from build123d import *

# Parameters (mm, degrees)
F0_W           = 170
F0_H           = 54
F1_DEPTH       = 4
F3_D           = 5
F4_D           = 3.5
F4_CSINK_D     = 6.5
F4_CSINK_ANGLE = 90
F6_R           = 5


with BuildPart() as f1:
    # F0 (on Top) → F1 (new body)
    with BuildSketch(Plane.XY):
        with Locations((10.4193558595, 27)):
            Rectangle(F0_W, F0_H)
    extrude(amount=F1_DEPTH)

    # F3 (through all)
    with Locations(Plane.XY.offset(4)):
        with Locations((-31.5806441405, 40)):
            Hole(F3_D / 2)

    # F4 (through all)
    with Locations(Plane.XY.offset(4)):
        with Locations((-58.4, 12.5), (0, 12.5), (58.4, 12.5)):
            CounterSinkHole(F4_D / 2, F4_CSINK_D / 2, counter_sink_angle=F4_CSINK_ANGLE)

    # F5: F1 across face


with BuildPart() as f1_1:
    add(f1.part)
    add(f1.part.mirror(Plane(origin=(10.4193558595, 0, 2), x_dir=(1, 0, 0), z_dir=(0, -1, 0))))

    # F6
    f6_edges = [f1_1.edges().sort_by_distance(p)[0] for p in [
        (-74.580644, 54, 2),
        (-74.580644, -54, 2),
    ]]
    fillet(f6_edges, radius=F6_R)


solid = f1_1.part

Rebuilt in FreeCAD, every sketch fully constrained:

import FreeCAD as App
import Part
import Sketcher

V = App.Vector


def edges_at(feature, points):
    """Names of the edges that pass closest to the given points."""
    edges = feature.Shape.Edges
    near = lambda p: min(range(len(edges)), key=lambda i: edges[i].distToShape(Part.Vertex(*p))[0])
    return sorted({f"Edge{near(p) + 1}" for p in points})


def add_polygon(sketch, points):
    """Adds a closed chain of lines whose ends are joined by coincident constraints."""
    first, n = sketch.GeometryCount, len(points)
    for a, b in zip(points, points[1:] + points[:1]):
        sketch.addGeometry(Part.LineSegment(App.Vector(*a, 0), App.Vector(*b, 0)), False)
    for i in range(n):
        sketch.addConstraint(Sketcher.Constraint("Coincident", first + i, 2, first + (i + 1) % n, 1))

doc = App.newDocument("Part")
body = doc.addObject("PartDesign::Body", "Body")

sketch1 = body.newObject("Sketcher::SketchObject", "Sketch")
sketch1.AttachmentSupport = (doc.getObject("XY_Plane"), [""])
sketch1.MapMode = "FlatFace"
add_polygon(sketch1, [(-75, 54), (-75, 0), (95, 0), (95, 54)])
sketch1.addConstraint(Sketcher.Constraint("Vertical", 0))
sketch1.addConstraint(Sketcher.Constraint("Horizontal", 1))
sketch1.addConstraint(Sketcher.Constraint("Vertical", 2))
sketch1.addConstraint(Sketcher.Constraint("Horizontal", 3))
sketch1.addConstraint(Sketcher.Constraint("PointOnObject", 0, 2, -1))
sketch1.addConstraint(Sketcher.Constraint("DistanceX", 1, 1, 1, 2, 170.0))
sketch1.addConstraint(Sketcher.Constraint("DistanceY", 0, 2, 0, 1, 54.0))
sketch1.addConstraint(Sketcher.Constraint("DistanceX", 0, 2, -1, 1, 74.580644))
pad1 = body.newObject("PartDesign::Pad", "Pad")
pad1.Profile = sketch1
pad1.Length = 4

sketch2 = body.newObject("Sketcher::SketchObject", "Sketch001")
sketch2.AttachmentSupport = (doc.getObject("XY_Plane"), [""])
sketch2.MapMode = "FlatFace"
sketch2.AttachmentOffset = App.Placement(V(0, 0, 4), App.Rotation())
sketch2.addGeometry(Part.Circle(V(-31.6, 40, 0), V(0, 0, 1), 2.5), False)
sketch2.addConstraint(Sketcher.Constraint("Diameter", 0, 5.0))
sketch2.addConstraint(Sketcher.Constraint("DistanceY", -1, 1, 0, 3, 40.0))
sketch2.addConstraint(Sketcher.Constraint("DistanceX", 0, 3, -1, 1, 31.580644))
doc.recompute()
hole = body.newObject("PartDesign::Hole", "Hole")
hole.Profile = sketch2
hole.ThreadType = "None"
hole.Diameter = 5
hole.DepthType = "ThroughAll"

sketch3 = body.newObject("Sketcher::SketchObject", "Sketch002")
sketch3.AttachmentSupport = (doc.getObject("XY_Plane"), [""])
sketch3.MapMode = "FlatFace"
sketch3.AttachmentOffset = App.Placement(V(0, 0, 4), App.Rotation())
sketch3.addGeometry(Part.Circle(V(-58.4, 12.5, 0), V(0, 0, 1), 1.8), False)
sketch3.addGeometry(Part.Circle(V(0, 12.5, 0), V(0, 0, 1), 1.8), False)
sketch3.addGeometry(Part.Circle(V(58.4, 12.5, 0), V(0, 0, 1), 1.8), False)
sketch3.addConstraint(Sketcher.Constraint("Equal", 0, 1))
sketch3.addConstraint(Sketcher.Constraint("Equal", 1, 2))
sketch3.addConstraint(Sketcher.Constraint("Symmetric", 0, 3, 2, 3, -2))
sketch3.addConstraint(Sketcher.Constraint("PointOnObject", 1, 3, -2))
sketch3.addConstraint(Sketcher.Constraint("Horizontal", 0, 3, 1, 3))
sketch3.addConstraint(Sketcher.Constraint("Diameter", 0, 3.5))
sketch3.addConstraint(Sketcher.Constraint("DistanceX", 0, 3, -1, 1, 58.4))
sketch3.addConstraint(Sketcher.Constraint("DistanceY", -1, 1, 0, 3, 12.5))
doc.recompute()
hole2 = body.newObject("PartDesign::Hole", "Hole001")
hole2.Profile = sketch3
hole2.ThreadType = "None"
hole2.Diameter = 3.5
hole2.DepthType = "ThroughAll"
hole2.HoleCutType = "Countersink"
hole2.HoleCutDiameter = 6.5
hole2.HoleCutCountersinkAngle = 90
body2 = doc.addObject("PartDesign::Body", "Body001")
doc.recompute()

body2.BaseFeature = body
doc.recompute()

mirroring = doc.addObject("Part::Mirroring", "Mirroring")
mirroring.Source = body
mirroring.Base = V(10.419356, 0, 2)
mirroring.Normal = V(0, -1, 0)
body3 = doc.addObject("PartDesign::Body", "Body002")
body3.BaseFeature = mirroring
boolean = body2.newObject("PartDesign::Boolean", "Boolean")
boolean.Type = "Fuse"
boolean.addObjects([body3])
doc.recompute()

fillet = body2.newObject("PartDesign::Fillet", "Fillet")
fillet.Base = (boolean, edges_at(boolean, [(-74.581, 54, 2), (-74.581, -54, 2)]))
fillet.Radius = 5
mirroring.Visibility = False

doc.recompute()
